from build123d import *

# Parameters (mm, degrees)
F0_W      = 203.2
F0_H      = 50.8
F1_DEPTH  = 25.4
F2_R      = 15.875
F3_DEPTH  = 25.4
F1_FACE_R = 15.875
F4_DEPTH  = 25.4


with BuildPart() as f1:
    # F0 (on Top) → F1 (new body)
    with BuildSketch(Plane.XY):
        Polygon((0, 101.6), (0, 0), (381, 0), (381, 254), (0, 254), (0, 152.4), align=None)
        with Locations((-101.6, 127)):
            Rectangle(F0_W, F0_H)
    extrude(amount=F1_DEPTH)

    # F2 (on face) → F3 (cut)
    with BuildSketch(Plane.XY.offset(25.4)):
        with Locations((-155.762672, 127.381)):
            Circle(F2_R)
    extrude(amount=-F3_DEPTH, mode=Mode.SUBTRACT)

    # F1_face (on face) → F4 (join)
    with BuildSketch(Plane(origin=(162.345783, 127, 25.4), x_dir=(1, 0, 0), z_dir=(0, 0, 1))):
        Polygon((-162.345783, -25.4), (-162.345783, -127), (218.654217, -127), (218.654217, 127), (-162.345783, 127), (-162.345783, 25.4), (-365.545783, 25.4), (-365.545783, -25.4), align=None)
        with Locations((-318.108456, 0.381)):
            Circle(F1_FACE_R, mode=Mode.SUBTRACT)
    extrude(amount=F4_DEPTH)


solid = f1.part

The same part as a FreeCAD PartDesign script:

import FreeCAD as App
import Part
import Sketcher

V = App.Vector
Q = App.Units.Quantity


def add_polygon(sketch, points):
    """Adds a closed chain of lines whose ends are joined by coincident constraints."""
    first, n = sketch.GeometryCount, len(points)
    for a, b in zip(points, points[1:] + points[:1]):
        sketch.addGeometry(Part.LineSegment(App.Vector(*a, 0), App.Vector(*b, 0)), False)
    for i in range(n):
        sketch.addConstraint(Sketcher.Constraint("Coincident", first + i, 2, first + (i + 1) % n, 1))

doc = App.newDocument("Part")
body = doc.addObject("PartDesign::Body", "Body")

# Sketch on XY plane
sketch1 = body.newObject("Sketcher::SketchObject", "Sketch")
sketch1.AttachmentSupport = (doc.getObject("XY_Plane"), [""])
sketch1.MapMode = "FlatFace"
add_polygon(sketch1, [(0, 0), (381, 0), (381, 254), (0, 254), (0, 152.4), (-203.2, 152.4), (-203.2, 101.6), (0, 101.6)])  # lines 0-7
sketch1.addConstraint([
    Sketcher.Constraint("Horizontal", 0),
    Sketcher.Constraint("Vertical", 1),
    Sketcher.Constraint("Horizontal", 2),
    Sketcher.Constraint("Vertical", 3),
    Sketcher.Constraint("Horizontal", 4),
    Sketcher.Constraint("Vertical", 5),
    Sketcher.Constraint("Horizontal", 6),
    Sketcher.Constraint("Vertical", 7),
    Sketcher.Constraint("Coincident", 7, 2, -1, 1),
    Sketcher.Constraint("PointOnObject", 2, 2, -2),
    Sketcher.Constraint("Equal", 3, 7),
    Sketcher.Constraint("DistanceX", 0, 1, 0, 2, Q("15 in")),
    Sketcher.Constraint("DistanceX", 4, 2, 4, 1, Q("8 in")),
    Sketcher.Constraint("DistanceY", 1, 1, 1, 2, Q("10 in")),
    Sketcher.Constraint("DistanceY", 3, 2, 3, 1, Q("4 in")),
])
pad1 = body.newObject("PartDesign::Pad", "Pad")
pad1.Profile = sketch1
pad1.Length = Q("1 in")

# Sketch on XY plane
sketch2 = body.newObject("Sketcher::SketchObject", "Sketch001")
sketch2.AttachmentSupport = (doc.getObject("XY_Plane"), [""])
sketch2.MapMode = "FlatFace"
sketch2.AttachmentOffset = App.Placement(V(0, 0, 1 * 25.4), App.Rotation())
sketch2.addGeometry(Part.Circle(V(-155.762672, 127.381, 0), V(0, 0, 1), 15.875), False)
sketch2.addConstraint([
    Sketcher.Constraint("Diameter", 0, Q("1.25 in")),
    Sketcher.Constraint("DistanceY", -1, 1, 0, 3, Q("5.015 in")),
    Sketcher.Constraint("DistanceX", 0, 3, -1, 1, 155.762672),
])
pocket1 = body.newObject("PartDesign::Pocket", "Pocket")
pocket1.Profile = sketch2
pocket1.Length = Q("1 in")

# Sketch on XY plane
sketch3 = body.newObject("Sketcher::SketchObject", "Sketch002")
sketch3.AttachmentSupport = (doc.getObject("XY_Plane"), [""])
sketch3.MapMode = "FlatFace"
sketch3.AttachmentOffset = App.Placement(V(0, 0, 1 * 25.4), App.Rotation())
add_polygon(sketch3, [(0, 101.6), (0, 0), (381, 0), (381, 254), (0, 254), (0, 152.4), (-203.2, 152.4), (-203.2, 101.6)])  # lines 0-7
sketch3.addGeometry(Part.Circle(V(-155.762673, 127.381, 0), V(0, 0, 1), 15.875), False)  # 8
sketch3.addConstraint([
    Sketcher.Constraint("Vertical", 0),
    Sketcher.Constraint("Horizontal", 1),
    Sketcher.Constraint("Vertical", 2),
    Sketcher.Constraint("Horizontal", 3),
    Sketcher.Constraint("Vertical", 4),
    Sketcher.Constraint("Horizontal", 5),
    Sketcher.Constraint("Vertical", 6),
    Sketcher.Constraint("Horizontal", 7),
    Sketcher.Constraint("Coincident", 0, 2, -1, 1),
    Sketcher.Constraint("PointOnObject", 3, 2, -2),
    Sketcher.Constraint("Equal", 0, 4),
    Sketcher.Constraint("Diameter", 8, Q("1.25 in")),
    Sketcher.Constraint("DistanceX", 1, 1, 1, 2, Q("15 in")),
    Sketcher.Constraint("DistanceX", 5, 2, 5, 1, Q("8 in")),
    Sketcher.Constraint("DistanceY", 0, 2, 0, 1, Q("4 in")),
    Sketcher.Constraint("DistanceY", 2, 1, 2, 2, Q("10 in")),
    Sketcher.Constraint("DistanceY", -1, 1, 8, 3, Q("5.015 in")),
    Sketcher.Constraint("DistanceX", 8, 3, -1, 1, 155.762673),
])
pad2 = body.newObject("PartDesign::Pad", "Pad001")
pad2.Profile = sketch3
pad2.Length = Q("1 in")

doc.recompute()
